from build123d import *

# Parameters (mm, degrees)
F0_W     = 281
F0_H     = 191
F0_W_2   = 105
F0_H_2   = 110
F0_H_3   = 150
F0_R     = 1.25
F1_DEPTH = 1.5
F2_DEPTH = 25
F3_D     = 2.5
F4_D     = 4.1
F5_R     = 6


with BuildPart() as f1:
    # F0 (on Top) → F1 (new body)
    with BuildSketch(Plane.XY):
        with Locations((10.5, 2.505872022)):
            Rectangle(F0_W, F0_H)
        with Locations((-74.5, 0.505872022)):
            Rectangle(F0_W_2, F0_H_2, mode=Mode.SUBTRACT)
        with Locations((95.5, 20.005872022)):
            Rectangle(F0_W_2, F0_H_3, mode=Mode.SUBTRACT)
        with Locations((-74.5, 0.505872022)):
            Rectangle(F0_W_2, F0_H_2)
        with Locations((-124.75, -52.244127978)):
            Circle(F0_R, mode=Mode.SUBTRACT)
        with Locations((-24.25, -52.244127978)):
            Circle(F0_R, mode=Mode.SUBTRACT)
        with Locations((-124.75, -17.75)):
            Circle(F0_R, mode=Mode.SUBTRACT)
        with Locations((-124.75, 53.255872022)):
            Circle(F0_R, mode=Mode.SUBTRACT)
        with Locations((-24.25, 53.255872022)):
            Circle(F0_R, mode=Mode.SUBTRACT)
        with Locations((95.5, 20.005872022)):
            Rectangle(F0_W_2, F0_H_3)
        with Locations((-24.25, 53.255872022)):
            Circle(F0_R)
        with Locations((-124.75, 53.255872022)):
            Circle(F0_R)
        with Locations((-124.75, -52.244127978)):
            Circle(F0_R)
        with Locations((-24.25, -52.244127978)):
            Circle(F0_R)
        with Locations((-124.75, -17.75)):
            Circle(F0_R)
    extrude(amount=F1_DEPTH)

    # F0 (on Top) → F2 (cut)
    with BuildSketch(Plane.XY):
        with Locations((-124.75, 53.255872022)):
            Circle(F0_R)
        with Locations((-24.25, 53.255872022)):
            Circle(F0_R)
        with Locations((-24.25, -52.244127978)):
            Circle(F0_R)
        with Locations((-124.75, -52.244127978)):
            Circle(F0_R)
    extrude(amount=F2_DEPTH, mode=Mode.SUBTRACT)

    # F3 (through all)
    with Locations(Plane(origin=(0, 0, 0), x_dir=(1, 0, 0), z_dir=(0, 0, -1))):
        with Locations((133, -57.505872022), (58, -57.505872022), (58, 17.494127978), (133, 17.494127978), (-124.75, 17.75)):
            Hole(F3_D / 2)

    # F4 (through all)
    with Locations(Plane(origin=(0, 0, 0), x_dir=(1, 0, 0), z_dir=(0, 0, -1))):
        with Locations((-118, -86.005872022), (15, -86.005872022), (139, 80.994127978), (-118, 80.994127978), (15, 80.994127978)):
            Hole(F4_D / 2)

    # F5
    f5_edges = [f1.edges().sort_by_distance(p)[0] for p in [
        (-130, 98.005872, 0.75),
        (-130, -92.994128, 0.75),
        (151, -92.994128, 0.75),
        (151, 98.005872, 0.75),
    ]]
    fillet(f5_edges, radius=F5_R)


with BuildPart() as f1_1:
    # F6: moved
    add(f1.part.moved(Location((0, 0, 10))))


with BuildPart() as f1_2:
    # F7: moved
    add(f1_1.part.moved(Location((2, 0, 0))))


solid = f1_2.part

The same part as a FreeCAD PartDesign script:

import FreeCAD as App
import Part
import Sketcher

V = App.Vector
Q = App.Units.Quantity


def edges_at(feature, points):
    """Names of the edges that pass closest to the given points."""
    edges = feature.Shape.Edges
    near = lambda p: min(range(len(edges)), key=lambda i: edges[i].distToShape(Part.Vertex(*p))[0])
    return sorted({f"Edge{near(p) + 1}" for p in points})


def add_polygon(sketch, points):
    """Adds a closed chain of lines whose ends are joined by coincident constraints."""
    first, n = sketch.GeometryCount, len(points)
    for a, b in zip(points, points[1:] + points[:1]):
        sketch.addGeometry(Part.LineSegment(App.Vector(*a, 0), App.Vector(*b, 0)), False)
    for i in range(n):
        sketch.addConstraint(Sketcher.Constraint("Coincident", first + i, 2, first + (i + 1) % n, 1))

doc = App.newDocument("Part")
body = doc.addObject("PartDesign::Body", "Body")

# Sketch on XY plane
sketch1 = body.newObject("Sketcher::SketchObject", "Sketch")
sketch1.AttachmentSupport = (doc.getObject("XY_Plane"), [""])
sketch1.MapMode = "FlatFace"
add_polygon(sketch1, [(-130, 98.005872), (-130, -92.994128), (151, -92.994128), (151, 98.005872)])  # lines 0-3
sketch1.addConstraint(Sketcher.Constraint("Vertical", 0))
sketch1.addConstraint(Sketcher.Constraint("Horizontal", 1))
sketch1.addConstraint(Sketcher.Constraint("Vertical", 2))
sketch1.addConstraint(Sketcher.Constraint("Horizontal", 3))
sketch1.addConstraint(Sketcher.Constraint("DistanceX", 1, 1, 1, 2, Q("281 mm")))
sketch1.addConstraint(Sketcher.Constraint("DistanceY", 0, 2, 0, 1, Q("191 mm")))
sketch1.addConstraint(Sketcher.Constraint("DistanceX", 0, 2, -1, 1, Q("130 mm")))
sketch1.addConstraint(Sketcher.Constraint("DistanceY", 0, 2, -1, 1, Q("92.994128 mm")))
pad1 = body.newObject("PartDesign::Pad", "Pad")
pad1.Profile = sketch1
pad1.Length = 1.5

# Sketch on XY plane
sketch2 = body.newObject("Sketcher::SketchObject", "Sketch001")
sketch2.AttachmentSupport = (doc.getObject("XY_Plane"), [""])
sketch2.MapMode = "FlatFace"
sketch2.addGeometry(Part.Circle(V(-124.75, 53.255872, 0), V(0, 0, 1), 1.25), False)
sketch2.addGeometry(Part.Circle(V(-24.25, 53.255872, 0), V(0, 0, 1), 1.25), False)
sketch2.addGeometry(Part.Circle(V(-24.25, -52.244128, 0), V(0, 0, 1), 1.25), False)
sketch2.addGeometry(Part.Circle(V(-124.75, -52.244128, 0), V(0, 0, 1), 1.25), False)
sketch2.addConstraint(Sketcher.Constraint("Equal", 0, 1))
sketch2.addConstraint(Sketcher.Constraint("Equal", 1, 2))
sketch2.addConstraint(Sketcher.Constraint("Equal", 2, 3))
sketch2.addConstraint(Sketcher.Constraint("Horizontal", 0, 3, 1, 3))
sketch2.addConstraint(Sketcher.Constraint("Horizontal", 2, 3, 3, 3))
sketch2.addConstraint(Sketcher.Constraint("Vertical", 1, 3, 2, 3))
sketch2.addConstraint(Sketcher.Constraint("Vertical", 0, 3, 3, 3))
sketch2.addConstraint(Sketcher.Constraint("Diameter", 0, Q("2.5 mm")))
sketch2.addConstraint(Sketcher.Constraint("DistanceX", 0, 3, 1, 3, Q("100.5 mm")))
sketch2.addConstraint(Sketcher.Constraint("DistanceY", 2, 3, 1, 3, Q("105.5 mm")))
sketch2.addConstraint(Sketcher.Constraint("DistanceX", 0, 3, -1, 1, Q("124.75 mm")))
sketch2.addConstraint(Sketcher.Constraint("DistanceY", -1, 1, 0, 3, Q("53.255872 mm")))
pocket1 = body.newObject("PartDesign::Pocket", "Pocket")
pocket1.Profile = sketch2
pocket1.Length = 25
pocket1.Reversed = True

# Sketch on XY plane
sketch3 = body.newObject("Sketcher::SketchObject", "Sketch002")
sketch3.AttachmentSupport = (doc.getObject("XY_Plane"), [""])
sketch3.MapMode = "FlatFace"
sketch3.addGeometry(Part.Circle(V(133, 57.505872, 0), V(0, 0, 1), 1.25), False)
sketch3.addGeometry(Part.Circle(V(58, 57.505872, 0), V(0, 0, 1), 1.25), False)
sketch3.addGeometry(Part.Circle(V(58, -17.494128, 0), V(0, 0, 1), 1.25), False)
sketch3.addGeometry(Part.Circle(V(133, -17.494128, 0), V(0, 0, 1), 1.25), False)
sketch3.addGeometry(Part.Circle(V(-124.75, -17.75, 0), V(0, 0, 1), 1.25), False)
sketch3.addConstraint(Sketcher.Constraint("Equal", 0, 1))
sketch3.addConstraint(Sketcher.Constraint("Equal", 1, 2))
sketch3.addConstraint(Sketcher.Constraint("Equal", 2, 3))
sketch3.addConstraint(Sketcher.Constraint("Equal", 3, 4))
sketch3.addConstraint(Sketcher.Constraint("Horizontal", 0, 3, 1, 3))
sketch3.addConstraint(Sketcher.Constraint("Horizontal", 2, 3, 3, 3))
sketch3.addConstraint(Sketcher.Constraint("Vertical", 1, 3, 2, 3))
sketch3.addConstraint(Sketcher.Constraint("Vertical", 0, 3, 3, 3))
sketch3.addConstraint(Sketcher.Constraint("Diameter", 0, Q("2.5 mm")))
sketch3.addConstraint(Sketcher.Constraint("DistanceX", -1, 1, 0, 3, Q("133 mm")))
sketch3.addConstraint(Sketcher.Constraint("DistanceX", -1, 1, 1, 3, Q("58 mm")))
sketch3.addConstraint(Sketcher.Constraint("DistanceY", 2, 3, 1, 3, Q("75 mm")))
sketch3.addConstraint(Sketcher.Constraint("DistanceX", 4, 3, -1, 1, Q("124.75 mm")))
sketch3.addConstraint(Sketcher.Constraint("DistanceY", 4, 3, -1, 1, Q("17.75 mm")))
sketch3.addConstraint(Sketcher.Constraint("DistanceY", -1, 1, 0, 3, Q("57.505872 mm")))
doc.recompute()
hole = body.newObject("PartDesign::Hole", "Hole")
hole.Profile = sketch3
hole.ThreadType = "None"
hole.Diameter = 2.5
hole.DepthType = "ThroughAll"
hole.Reversed = True

# Sketch on XY plane
sketch4 = body.newObject("Sketcher::SketchObject", "Sketch003")
sketch4.AttachmentSupport = (doc.getObject("XY_Plane"), [""])
sketch4.MapMode = "FlatFace"
sketch4.addGeometry(Part.Circle(V(-118, 86.005872, 0), V(0, 0, 1), 2.05), False)
sketch4.addGeometry(Part.Circle(V(15, 86.005872, 0), V(0, 0, 1), 2.05), False)
sketch4.addGeometry(Part.Circle(V(139, -80.994128, 0), V(0, 0, 1), 2.05), False)
sketch4.addGeometry(Part.Circle(V(-118, -80.994128, 0), V(0, 0, 1), 2.05), False)
sketch4.addGeometry(Part.Circle(V(15, -80.994128, 0), V(0, 0, 1), 2.05), False)
sketch4.addConstraint(Sketcher.Constraint("Equal", 0, 1))
sketch4.addConstraint(Sketcher.Constraint("Equal", 1, 2))
sketch4.addConstraint(Sketcher.Constraint("Equal", 2, 3))
sketch4.addConstraint(Sketcher.Constraint("Equal", 3, 4))
sketch4.addConstraint(Sketcher.Constraint("Horizontal", 0, 3, 1, 3))
sketch4.addConstraint(Sketcher.Constraint("Horizontal", 2, 3, 3, 3))
sketch4.addConstraint(Sketcher.Constraint("Horizontal", 3, 3, 4, 3))
sketch4.addConstraint(Sketcher.Constraint("Vertical", 0, 3, 3, 3))
sketch4.addConstraint(Sketcher.Constraint("Vertical", 1, 3, 4, 3))
sketch4.addConstraint(Sketcher.Constraint("Diameter", 0, Q("4.1 mm")))
sketch4.addConstraint(Sketcher.Constraint("DistanceX", 0, 3, -1, 1, Q("118 mm")))
sketch4.addConstraint(Sketcher.Constraint("DistanceX", -1, 1, 1, 3, Q("15 mm")))
sketch4.addConstraint(Sketcher.Constraint("DistanceX", -1, 1, 2, 3, Q("139 mm")))
sketch4.addConstraint(Sketcher.Constraint("DistanceY", 2, 3, 1, 3, Q("167 mm")))
sketch4.addConstraint(Sketcher.Constraint("DistanceY", -1, 1, 0, 3, Q("86.005872 mm")))
doc.recompute()
hole2 = body.newObject("PartDesign::Hole", "Hole001")
hole2.Profile = sketch4
hole2.ThreadType = "None"
hole2.Diameter = 4.1
hole2.DepthType = "ThroughAll"
hole2.Reversed = True
doc.recompute()

fillet = body.newObject("PartDesign::Fillet", "Fillet")
fillet.Base = (hole2, edges_at(hole2, [
    (-130, 98.006, 0.75),
    (-130, -92.994, 0.75),
    (151, -92.994, 0.75),
    (151, 98.006, 0.75),
]))
fillet.Radius = 6
body2 = doc.addObject("PartDesign::Body", "Body001")
doc.recompute()

body.Placement = App.Placement(V(0, 0, 10), App.Rotation(V(0, 0, 1), 0))
boolean = body2.newObject("PartDesign::Boolean", "Boolean")
boolean.Type = "Fuse"
boolean.addObjects([body])
body3 = doc.addObject("PartDesign::Body", "Body002")
doc.recompute()

body2.Placement = App.Placement(V(2, 0, 0), App.Rotation(V(0, 0, 1), 0))
boolean2 = body3.newObject("PartDesign::Boolean", "Boolean001")
boolean2.Type = "Fuse"
boolean2.addObjects([body2])

doc.recompute()
